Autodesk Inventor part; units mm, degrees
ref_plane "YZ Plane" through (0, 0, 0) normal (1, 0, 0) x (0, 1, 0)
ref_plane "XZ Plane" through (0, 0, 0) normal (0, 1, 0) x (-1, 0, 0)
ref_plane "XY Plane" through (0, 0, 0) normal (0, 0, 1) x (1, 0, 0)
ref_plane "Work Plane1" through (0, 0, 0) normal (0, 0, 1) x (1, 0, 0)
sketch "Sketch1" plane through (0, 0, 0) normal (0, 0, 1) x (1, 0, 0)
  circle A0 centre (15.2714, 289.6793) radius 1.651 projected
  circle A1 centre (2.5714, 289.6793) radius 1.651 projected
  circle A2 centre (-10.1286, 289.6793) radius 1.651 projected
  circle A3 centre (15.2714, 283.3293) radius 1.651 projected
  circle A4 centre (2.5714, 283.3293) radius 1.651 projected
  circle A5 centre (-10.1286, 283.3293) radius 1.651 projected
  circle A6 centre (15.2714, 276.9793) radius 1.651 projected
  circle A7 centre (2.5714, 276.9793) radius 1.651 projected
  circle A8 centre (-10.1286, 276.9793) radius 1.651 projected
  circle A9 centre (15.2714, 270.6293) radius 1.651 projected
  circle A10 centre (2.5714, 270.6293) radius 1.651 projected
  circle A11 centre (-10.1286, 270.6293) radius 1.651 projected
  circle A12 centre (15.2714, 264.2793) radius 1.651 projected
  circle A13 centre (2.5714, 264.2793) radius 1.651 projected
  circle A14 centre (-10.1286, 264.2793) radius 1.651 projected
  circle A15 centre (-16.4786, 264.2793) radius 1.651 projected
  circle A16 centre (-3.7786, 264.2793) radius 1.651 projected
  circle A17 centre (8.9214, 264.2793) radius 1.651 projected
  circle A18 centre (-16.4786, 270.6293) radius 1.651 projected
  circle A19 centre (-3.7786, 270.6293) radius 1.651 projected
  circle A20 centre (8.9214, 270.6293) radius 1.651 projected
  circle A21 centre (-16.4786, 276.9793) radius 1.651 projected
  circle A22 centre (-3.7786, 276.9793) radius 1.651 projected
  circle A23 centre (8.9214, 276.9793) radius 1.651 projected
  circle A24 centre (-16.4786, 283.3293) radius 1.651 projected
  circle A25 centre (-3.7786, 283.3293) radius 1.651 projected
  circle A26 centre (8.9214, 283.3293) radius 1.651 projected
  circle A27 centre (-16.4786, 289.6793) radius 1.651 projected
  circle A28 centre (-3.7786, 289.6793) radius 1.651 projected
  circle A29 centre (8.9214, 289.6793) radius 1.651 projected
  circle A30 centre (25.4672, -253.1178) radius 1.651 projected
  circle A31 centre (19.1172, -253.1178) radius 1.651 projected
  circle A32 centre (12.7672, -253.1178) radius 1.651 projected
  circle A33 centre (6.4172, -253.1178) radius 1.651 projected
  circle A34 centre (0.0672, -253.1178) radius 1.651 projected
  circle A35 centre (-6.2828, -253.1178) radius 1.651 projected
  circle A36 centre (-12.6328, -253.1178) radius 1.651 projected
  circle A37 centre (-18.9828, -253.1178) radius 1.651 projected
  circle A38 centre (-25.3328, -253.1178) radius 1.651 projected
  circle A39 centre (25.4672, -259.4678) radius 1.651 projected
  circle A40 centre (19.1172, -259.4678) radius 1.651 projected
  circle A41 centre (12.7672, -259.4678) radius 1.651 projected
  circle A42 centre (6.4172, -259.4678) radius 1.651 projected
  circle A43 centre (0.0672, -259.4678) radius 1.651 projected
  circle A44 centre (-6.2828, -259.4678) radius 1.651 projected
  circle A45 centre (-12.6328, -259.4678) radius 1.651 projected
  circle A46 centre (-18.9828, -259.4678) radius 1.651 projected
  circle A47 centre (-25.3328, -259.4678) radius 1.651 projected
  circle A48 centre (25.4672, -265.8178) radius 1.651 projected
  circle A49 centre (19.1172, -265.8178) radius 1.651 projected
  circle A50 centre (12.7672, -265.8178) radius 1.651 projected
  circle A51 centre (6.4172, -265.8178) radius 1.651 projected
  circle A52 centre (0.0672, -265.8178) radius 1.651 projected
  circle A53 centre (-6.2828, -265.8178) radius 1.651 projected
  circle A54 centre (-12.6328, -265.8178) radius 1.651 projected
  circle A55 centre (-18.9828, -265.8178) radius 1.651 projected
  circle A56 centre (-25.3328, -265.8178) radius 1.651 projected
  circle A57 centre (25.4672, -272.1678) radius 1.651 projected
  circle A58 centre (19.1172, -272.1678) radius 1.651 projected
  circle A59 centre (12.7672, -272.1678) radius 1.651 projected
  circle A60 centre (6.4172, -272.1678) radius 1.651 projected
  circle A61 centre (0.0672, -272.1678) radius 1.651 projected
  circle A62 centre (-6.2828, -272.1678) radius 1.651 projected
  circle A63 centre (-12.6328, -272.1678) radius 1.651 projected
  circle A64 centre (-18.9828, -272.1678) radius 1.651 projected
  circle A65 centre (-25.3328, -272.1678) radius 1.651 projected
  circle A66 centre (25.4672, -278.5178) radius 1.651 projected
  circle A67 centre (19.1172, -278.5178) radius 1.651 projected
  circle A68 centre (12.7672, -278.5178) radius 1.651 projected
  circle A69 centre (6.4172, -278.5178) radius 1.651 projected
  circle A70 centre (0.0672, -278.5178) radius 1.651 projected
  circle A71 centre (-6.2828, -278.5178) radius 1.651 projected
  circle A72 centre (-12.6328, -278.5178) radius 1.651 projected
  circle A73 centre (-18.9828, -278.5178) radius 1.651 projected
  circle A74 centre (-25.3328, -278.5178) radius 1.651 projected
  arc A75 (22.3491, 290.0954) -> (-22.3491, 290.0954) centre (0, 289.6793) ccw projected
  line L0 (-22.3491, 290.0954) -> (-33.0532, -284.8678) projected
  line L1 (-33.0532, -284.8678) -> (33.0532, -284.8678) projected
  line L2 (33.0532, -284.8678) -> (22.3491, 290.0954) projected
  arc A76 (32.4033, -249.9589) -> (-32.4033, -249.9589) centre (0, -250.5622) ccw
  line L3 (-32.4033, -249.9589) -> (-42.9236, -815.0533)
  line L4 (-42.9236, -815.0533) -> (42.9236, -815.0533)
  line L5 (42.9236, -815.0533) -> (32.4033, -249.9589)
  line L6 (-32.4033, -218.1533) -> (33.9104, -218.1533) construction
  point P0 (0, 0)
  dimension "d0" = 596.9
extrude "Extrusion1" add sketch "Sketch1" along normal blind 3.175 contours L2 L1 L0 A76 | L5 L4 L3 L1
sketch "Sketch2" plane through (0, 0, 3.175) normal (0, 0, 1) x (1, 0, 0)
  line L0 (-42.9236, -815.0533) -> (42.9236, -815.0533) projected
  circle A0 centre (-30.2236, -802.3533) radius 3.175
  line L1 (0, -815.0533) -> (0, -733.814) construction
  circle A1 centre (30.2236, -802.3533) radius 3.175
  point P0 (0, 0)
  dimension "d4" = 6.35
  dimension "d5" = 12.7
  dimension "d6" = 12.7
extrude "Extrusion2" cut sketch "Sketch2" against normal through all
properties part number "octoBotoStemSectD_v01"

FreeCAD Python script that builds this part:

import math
import FreeCAD as App
import Part
import Sketcher
from FreeCAD import Vector
Q = App.Units.Quantity

doc = App.newDocument("Part")
params = doc.addObject("Spreadsheet::Sheet", "Params")
for row, (alias, value) in enumerate([
    ("sketch1_diameter", "0.13 in"),
    ("pad1_length", "0.125 in"),
    ("sketch2_diameter", "0.25 in"),
], start=1):
    params.set(f"A{row}", alias)
    params.set(f"B{row}", "=" + value)
    params.setAlias(f"B{row}", alias)

body = doc.addObject("PartDesign::Body", "Body")

sketch1 = doc.addObject("Sketcher::SketchObject", "Sketch")
body.addObject(sketch1)
sketch1.AttachmentSupport = (doc.XY_Plane, [""])
sketch1.MapMode = "FlatFace"
sketch1.addGeometry([
    Part.LineSegment(Vector(33.0532, -284.8678, 0), Vector(32.4033, -249.9589, 0)),
    Part.ArcOfCircle(Part.Circle(Vector(0, -250.5622, 0), Vector(0, 0, 1), 32.408916), math.radians(1.066637), math.radians(178.933363)),
    Part.LineSegment(Vector(-32.4033, -249.9589, 0), Vector(-33.0532, -284.8678, 0)),
    Part.LineSegment(Vector(-33.053195, -284.8678, 0), Vector(-42.9236, -815.0533, 0)),
    Part.LineSegment(Vector(-42.9236, -815.0533, 0), Vector(42.9236, -815.0533, 0)),
    Part.LineSegment(Vector(42.9236, -815.0533, 0), Vector(33.053195, -284.8678, 0)),
    Part.Circle(Vector(-25.3328, -278.5178, 0), Vector(0, 0, 1), 1.651),
    Part.Circle(Vector(-25.3328, -272.1678, 0), Vector(0, 0, 1), 1.651),
    Part.Circle(Vector(-25.3328, -265.8178, 0), Vector(0, 0, 1), 1.651),
    Part.Circle(Vector(-25.3328, -259.4678, 0), Vector(0, 0, 1), 1.651),
    Part.Circle(Vector(-25.3328, -253.1178, 0), Vector(0, 0, 1), 1.651),
    Part.Circle(Vector(-18.9828, -278.5178, 0), Vector(0, 0, 1), 1.651),
    Part.Circle(Vector(-18.9828, -272.1678, 0), Vector(0, 0, 1), 1.651),
    Part.Circle(Vector(-18.9828, -265.8178, 0), Vector(0, 0, 1), 1.651),
    Part.Circle(Vector(-18.9828, -259.4678, 0), Vector(0, 0, 1), 1.651),
    Part.Circle(Vector(-18.9828, -253.1178, 0), Vector(0, 0, 1), 1.651),
    Part.Circle(Vector(-12.6328, -278.5178, 0), Vector(0, 0, 1), 1.651),
    Part.Circle(Vector(-12.6328, -272.1678, 0), Vector(0, 0, 1), 1.651),
    Part.Circle(Vector(-12.6328, -265.8178, 0), Vector(0, 0, 1), 1.651),
    Part.Circle(Vector(-12.6328, -259.4678, 0), Vector(0, 0, 1), 1.651),
    Part.Circle(Vector(-12.6328, -253.1178, 0), Vector(0, 0, 1), 1.651),
    Part.Circle(Vector(-6.2828, -278.5178, 0), Vector(0, 0, 1), 1.651),
    Part.Circle(Vector(-6.2828, -272.1678, 0), Vector(0, 0, 1), 1.651),
    Part.Circle(Vector(-6.2828, -265.8178, 0), Vector(0, 0, 1), 1.651),
    Part.Circle(Vector(-6.2828, -259.4678, 0), Vector(0, 0, 1), 1.651),
    Part.Circle(Vector(-6.2828, -253.1178, 0), Vector(0, 0, 1), 1.651),
    Part.Circle(Vector(0.0672, -278.5178, 0), Vector(0, 0, 1), 1.651),
    Part.Circle(Vector(0.0672, -272.1678, 0), Vector(0, 0, 1), 1.651),
    Part.Circle(Vector(0.0672, -265.8178, 0), Vector(0, 0, 1), 1.651),
    Part.Circle(Vector(0.0672, -259.4678, 0), Vector(0, 0, 1), 1.651),
    Part.Circle(Vector(0.0672, -253.1178, 0), Vector(0, 0, 1), 1.651),
    Part.Circle(Vector(6.4172, -278.5178, 0), Vector(0, 0, 1), 1.651),
    Part.Circle(Vector(6.4172, -272.1678, 0), Vector(0, 0, 1), 1.651),
    Part.Circle(Vector(6.4172, -265.8178, 0), Vector(0, 0, 1), 1.651),
    Part.Circle(Vector(6.4172, -259.4678, 0), Vector(0, 0, 1), 1.651),
    Part.Circle(Vector(6.4172, -253.1178, 0), Vector(0, 0, 1), 1.651),
    Part.Circle(Vector(12.7672, -278.5178, 0), Vector(0, 0, 1), 1.651),
    Part.Circle(Vector(12.7672, -272.1678, 0), Vector(0, 0, 1), 1.651),
    Part.Circle(Vector(12.7672, -265.8178, 0), Vector(0, 0, 1), 1.651),
    Part.Circle(Vector(12.7672, -259.4678, 0), Vector(0, 0, 1), 1.651),
    Part.Circle(Vector(12.7672, -253.1178, 0), Vector(0, 0, 1), 1.651),
    Part.Circle(Vector(19.1172, -278.5178, 0), Vector(0, 0, 1), 1.651),
    Part.Circle(Vector(19.1172, -272.1678, 0), Vector(0, 0, 1), 1.651),
    Part.Circle(Vector(19.1172, -265.8178, 0), Vector(0, 0, 1), 1.651),
    Part.Circle(Vector(19.1172, -259.4678, 0), Vector(0, 0, 1), 1.651),
    Part.Circle(Vector(19.1172, -253.1178, 0), Vector(0, 0, 1), 1.651),
    Part.Circle(Vector(25.4672, -278.5178, 0), Vector(0, 0, 1), 1.651),
    Part.Circle(Vector(25.4672, -272.1678, 0), Vector(0, 0, 1), 1.651),
    Part.Circle(Vector(25.4672, -265.8178, 0), Vector(0, 0, 1), 1.651),
    Part.Circle(Vector(25.4672, -259.4678, 0), Vector(0, 0, 1), 1.651),
    Part.Circle(Vector(25.4672, -253.1178, 0), Vector(0, 0, 1), 1.651),
], False)
sketch1.addConstraint([
    Sketcher.Constraint("Tangent", 0, 2, 1, 1),
    Sketcher.Constraint("Tangent", 1, 2, 2, 1),
    Sketcher.Constraint("Coincident", 2, 2, 3, 1),
    Sketcher.Constraint("Coincident", 3, 2, 4, 1),
    Sketcher.Constraint("Coincident", 4, 2, 5, 1),
    Sketcher.Constraint("Coincident", 5, 2, 0, 1),
    Sketcher.Constraint("Horizontal", 4),
    Sketcher.Constraint("Equal", 6, 7),
    Sketcher.Constraint("Equal", 7, 8),
    Sketcher.Constraint("Equal", 8, 9),
    Sketcher.Constraint("Equal", 9, 10),
    Sketcher.Constraint("Equal", 10, 11),
    Sketcher.Constraint("Equal", 11, 12),
    Sketcher.Constraint("Equal", 12, 13),
    Sketcher.Constraint("Equal", 13, 14),
    Sketcher.Constraint("Equal", 14, 15),
    Sketcher.Constraint("Equal", 15, 16),
    Sketcher.Constraint("Equal", 16, 17),
    Sketcher.Constraint("Equal", 17, 18),
    Sketcher.Constraint("Equal", 18, 19),
    Sketcher.Constraint("Equal", 19, 20),
    Sketcher.Constraint("Equal", 20, 21),
    Sketcher.Constraint("Equal", 21, 22),
    Sketcher.Constraint("Equal", 22, 23),
    Sketcher.Constraint("Equal", 23, 24),
    Sketcher.Constraint("Equal", 24, 25),
    Sketcher.Constraint("Equal", 25, 26),
    Sketcher.Constraint("Equal", 26, 27),
    Sketcher.Constraint("Equal", 27, 28),
    Sketcher.Constraint("Equal", 28, 29),
    Sketcher.Constraint("Equal", 29, 30),
    Sketcher.Constraint("Equal", 30, 31),
    Sketcher.Constraint("Equal", 31, 32),
    Sketcher.Constraint("Equal", 32, 33),
    Sketcher.Constraint("Equal", 33, 34),
    Sketcher.Constraint("Equal", 34, 35),
    Sketcher.Constraint("Equal", 35, 36),
    Sketcher.Constraint("Equal", 36, 37),
    Sketcher.Constraint("Equal", 37, 38),
    Sketcher.Constraint("Equal", 38, 39),
    Sketcher.Constraint("Equal", 39, 40),
    Sketcher.Constraint("Equal", 40, 41),
    Sketcher.Constraint("Equal", 41, 42),
    Sketcher.Constraint("Equal", 42, 43),
    Sketcher.Constraint("Equal", 43, 44),
    Sketcher.Constraint("Equal", 44, 45),
    Sketcher.Constraint("Equal", 45, 46),
    Sketcher.Constraint("Equal", 46, 47),
    Sketcher.Constraint("Equal", 47, 48),
    Sketcher.Constraint("Equal", 48, 49),
    Sketcher.Constraint("Equal", 49, 50),
    Sketcher.Constraint("Symmetric", 0, 2, 1, 2, -2),
    Sketcher.Constraint("Parallel", 2, 3),
    Sketcher.Constraint("Parallel", 0, 5),
    Sketcher.Constraint("Horizontal", 6, 3, 11, 3),
    Sketcher.Constraint("Horizontal", 7, 3, 12, 3),
    Sketcher.Constraint("Horizontal", 8, 3, 13, 3),
    Sketcher.Constraint("Horizontal", 9, 3, 14, 3),
    Sketcher.Constraint("Horizontal", 10, 3, 15, 3),
    Sketcher.Constraint("Horizontal", 11, 3, 16, 3),
    Sketcher.Constraint("Horizontal", 12, 3, 17, 3),
    Sketcher.Constraint("Horizontal", 13, 3, 18, 3),
    Sketcher.Constraint("Horizontal", 14, 3, 19, 3),
    Sketcher.Constraint("Horizontal", 15, 3, 20, 3),
    Sketcher.Constraint("Horizontal", 16, 3, 21, 3),
    Sketcher.Constraint("Horizontal", 17, 3, 22, 3),
    Sketcher.Constraint("Horizontal", 18, 3, 23, 3),
    Sketcher.Constraint("Horizontal", 19, 3, 24, 3),
    Sketcher.Constraint("Horizontal", 20, 3, 25, 3),
    Sketcher.Constraint("Horizontal", 21, 3, 26, 3),
    Sketcher.Constraint("Horizontal", 22, 3, 27, 3),
    Sketcher.Constraint("Horizontal", 23, 3, 28, 3),
    Sketcher.Constraint("Horizontal", 24, 3, 29, 3),
    Sketcher.Constraint("Horizontal", 25, 3, 30, 3),
    Sketcher.Constraint("Horizontal", 26, 3, 31, 3),
    Sketcher.Constraint("Horizontal", 27, 3, 32, 3),
    Sketcher.Constraint("Horizontal", 28, 3, 33, 3),
    Sketcher.Constraint("Horizontal", 29, 3, 34, 3),
    Sketcher.Constraint("Horizontal", 30, 3, 35, 3),
    Sketcher.Constraint("Horizontal", 31, 3, 36, 3),
    Sketcher.Constraint("Horizontal", 32, 3, 37, 3),
    Sketcher.Constraint("Horizontal", 33, 3, 38, 3),
    Sketcher.Constraint("Horizontal", 34, 3, 39, 3),
    Sketcher.Constraint("Horizontal", 35, 3, 40, 3),
    Sketcher.Constraint("Horizontal", 36, 3, 41, 3),
    Sketcher.Constraint("Horizontal", 37, 3, 42, 3),
    Sketcher.Constraint("Horizontal", 38, 3, 43, 3),
    Sketcher.Constraint("Horizontal", 39, 3, 44, 3),
    Sketcher.Constraint("Horizontal", 40, 3, 45, 3),
    Sketcher.Constraint("Horizontal", 41, 3, 46, 3),
    Sketcher.Constraint("Horizontal", 42, 3, 47, 3),
    Sketcher.Constraint("Horizontal", 43, 3, 48, 3),
    Sketcher.Constraint("Horizontal", 44, 3, 49, 3),
    Sketcher.Constraint("Horizontal", 45, 3, 50, 3),
    Sketcher.Constraint("Horizontal", 2, 2, 5, 2),
    Sketcher.Constraint("Vertical", 6, 3, 7, 3),
    Sketcher.Constraint("Vertical", 7, 3, 8, 3),
    Sketcher.Constraint("Vertical", 8, 3, 9, 3),
    Sketcher.Constraint("Vertical", 9, 3, 10, 3),
    Sketcher.Constraint("Vertical", 11, 3, 12, 3),
    Sketcher.Constraint("Vertical", 12, 3, 13, 3),
    Sketcher.Constraint("Vertical", 13, 3, 14, 3),
    Sketcher.Constraint("Vertical", 14, 3, 15, 3),
    Sketcher.Constraint("Vertical", 16, 3, 17, 3),
    Sketcher.Constraint("Vertical", 17, 3, 18, 3),
    Sketcher.Constraint("Vertical", 18, 3, 19, 3),
    Sketcher.Constraint("Vertical", 19, 3, 20, 3),
    Sketcher.Constraint("Vertical", 21, 3, 22, 3),
    Sketcher.Constraint("Vertical", 22, 3, 23, 3),
    Sketcher.Constraint("Vertical", 23, 3, 24, 3),
    Sketcher.Constraint("Vertical", 24, 3, 25, 3),
    Sketcher.Constraint("Vertical", 26, 3, 27, 3),
    Sketcher.Constraint("Vertical", 27, 3, 28, 3),
    Sketcher.Constraint("Vertical", 28, 3, 29, 3),
    Sketcher.Constraint("Vertical", 29, 3, 30, 3),
    Sketcher.Constraint("Vertical", 31, 3, 32, 3),
    Sketcher.Constraint("Vertical", 32, 3, 33, 3),
    Sketcher.Constraint("Vertical", 33, 3, 34, 3),
    Sketcher.Constraint("Vertical", 34, 3, 35, 3),
    Sketcher.Constraint("Vertical", 36, 3, 37, 3),
    Sketcher.Constraint("Vertical", 37, 3, 38, 3),
    Sketcher.Constraint("Vertical", 38, 3, 39, 3),
    Sketcher.Constraint("Vertical", 39, 3, 40, 3),
    Sketcher.Constraint("Vertical", 41, 3, 42, 3),
    Sketcher.Constraint("Vertical", 42, 3, 43, 3),
    Sketcher.Constraint("Vertical", 43, 3, 44, 3),
    Sketcher.Constraint("Vertical", 44, 3, 45, 3),
    Sketcher.Constraint("Vertical", 46, 3, 47, 3),
    Sketcher.Constraint("Vertical", 47, 3, 48, 3),
    Sketcher.Constraint("Vertical", 48, 3, 49, 3),
    Sketcher.Constraint("Vertical", 49, 3, 50, 3),
    Sketcher.Constraint("Diameter", 6, Q("0.13 in")),
    Sketcher.Constraint("DistanceY", 6, 3, 10, 3, Q("1 in")),
    Sketcher.Constraint("DistanceY", 6, 3, 8, 3, Q("0.5 in")),
    Sketcher.Constraint("DistanceY", 7, 3, 9, 3, Q("0.5 in")),
    Sketcher.Constraint("DistanceX", 6, 3, 16, 3, Q("0.5 in")),
    Sketcher.Constraint("DistanceX", 11, 3, 21, 3, Q("0.5 in")),
    Sketcher.Constraint("DistanceX", 16, 3, 26, 3, Q("0.5 in")),
    Sketcher.Constraint("DistanceX", 21, 3, 31, 3, Q("0.5 in")),
    Sketcher.Constraint("DistanceX", 26, 3, 36, 3, Q("0.5 in")),
    Sketcher.Constraint("DistanceX", 31, 3, 41, 3, Q("0.5 in")),
    Sketcher.Constraint("DistanceX", 36, 3, 46, 3, Q("0.5 in")),
    Sketcher.Constraint("DistanceY", 2, 2, 7, 3, Q("0.5 in")),
    Sketcher.Constraint("Radius", 1, Q("32.409 mm")),
    Sketcher.Constraint("DistanceY", 6, 3, 7, 3, Q("0.25 in")),
    Sketcher.Constraint("DistanceX", 6, 3, 11, 3, Q("0.25 in")),
    Sketcher.Constraint("DistanceX", 4, 1, 4, 2, Q("3.3798 in")),
    Sketcher.Constraint("Distance", 0, Q("1.3746 in")),
    Sketcher.Constraint("DistanceY", 0, 2, -1, 1, Q("9.8409 in")),
    Sketcher.Constraint("Distance", 3, Q("530.2774 mm")),
    Sketcher.Constraint("DistanceX", 6, 3, -1, 1, Q("25.3328 mm")),
])
sketch1.setExpression("Constraints[131]", "Params.sketch1_diameter")
pad1 = doc.addObject("PartDesign::Pad", "Pad")
body.addObject(pad1)
pad1.Profile = sketch1
pad1.setExpression("Length", "Params.pad1_length")

sketch2 = doc.addObject("Sketcher::SketchObject", "Sketch001")
body.addObject(sketch2)
sketch2.AttachmentSupport = (doc.XY_Plane, [""])
sketch2.MapMode = "FlatFace"
sketch2.AttachmentOffset = App.Placement(Vector(0, 0, 0.125 * 25.4), App.Rotation())
sketch2.addGeometry([
    Part.Circle(Vector(-30.2236, -802.3533, 0), Vector(0, 0, 1), 3.175),
    Part.Circle(Vector(30.2236, -802.3533, 0), Vector(0, 0, 1), 3.175),
], False)
sketch2.addConstraint([
    Sketcher.Constraint("Equal", 0, 1),
    Sketcher.Constraint("Symmetric", 0, 3, 1, 3, -2),
    Sketcher.Constraint("Diameter", 0, Q("0.25 in")),
    Sketcher.Constraint("DistanceX", 0, 3, -1, 1, Q("1.1899 in")),
    Sketcher.Constraint("DistanceY", 0, 3, -1, 1, Q("802.3533 mm")),
])
sketch2.setExpression("Constraints[2]", "Params.sketch2_diameter")
pocket1 = doc.addObject("PartDesign::Pocket", "Pocket")
body.addObject(pocket1)
pocket1.Profile = sketch2
pocket1.Type = "ThroughAll"

doc.recompute()
